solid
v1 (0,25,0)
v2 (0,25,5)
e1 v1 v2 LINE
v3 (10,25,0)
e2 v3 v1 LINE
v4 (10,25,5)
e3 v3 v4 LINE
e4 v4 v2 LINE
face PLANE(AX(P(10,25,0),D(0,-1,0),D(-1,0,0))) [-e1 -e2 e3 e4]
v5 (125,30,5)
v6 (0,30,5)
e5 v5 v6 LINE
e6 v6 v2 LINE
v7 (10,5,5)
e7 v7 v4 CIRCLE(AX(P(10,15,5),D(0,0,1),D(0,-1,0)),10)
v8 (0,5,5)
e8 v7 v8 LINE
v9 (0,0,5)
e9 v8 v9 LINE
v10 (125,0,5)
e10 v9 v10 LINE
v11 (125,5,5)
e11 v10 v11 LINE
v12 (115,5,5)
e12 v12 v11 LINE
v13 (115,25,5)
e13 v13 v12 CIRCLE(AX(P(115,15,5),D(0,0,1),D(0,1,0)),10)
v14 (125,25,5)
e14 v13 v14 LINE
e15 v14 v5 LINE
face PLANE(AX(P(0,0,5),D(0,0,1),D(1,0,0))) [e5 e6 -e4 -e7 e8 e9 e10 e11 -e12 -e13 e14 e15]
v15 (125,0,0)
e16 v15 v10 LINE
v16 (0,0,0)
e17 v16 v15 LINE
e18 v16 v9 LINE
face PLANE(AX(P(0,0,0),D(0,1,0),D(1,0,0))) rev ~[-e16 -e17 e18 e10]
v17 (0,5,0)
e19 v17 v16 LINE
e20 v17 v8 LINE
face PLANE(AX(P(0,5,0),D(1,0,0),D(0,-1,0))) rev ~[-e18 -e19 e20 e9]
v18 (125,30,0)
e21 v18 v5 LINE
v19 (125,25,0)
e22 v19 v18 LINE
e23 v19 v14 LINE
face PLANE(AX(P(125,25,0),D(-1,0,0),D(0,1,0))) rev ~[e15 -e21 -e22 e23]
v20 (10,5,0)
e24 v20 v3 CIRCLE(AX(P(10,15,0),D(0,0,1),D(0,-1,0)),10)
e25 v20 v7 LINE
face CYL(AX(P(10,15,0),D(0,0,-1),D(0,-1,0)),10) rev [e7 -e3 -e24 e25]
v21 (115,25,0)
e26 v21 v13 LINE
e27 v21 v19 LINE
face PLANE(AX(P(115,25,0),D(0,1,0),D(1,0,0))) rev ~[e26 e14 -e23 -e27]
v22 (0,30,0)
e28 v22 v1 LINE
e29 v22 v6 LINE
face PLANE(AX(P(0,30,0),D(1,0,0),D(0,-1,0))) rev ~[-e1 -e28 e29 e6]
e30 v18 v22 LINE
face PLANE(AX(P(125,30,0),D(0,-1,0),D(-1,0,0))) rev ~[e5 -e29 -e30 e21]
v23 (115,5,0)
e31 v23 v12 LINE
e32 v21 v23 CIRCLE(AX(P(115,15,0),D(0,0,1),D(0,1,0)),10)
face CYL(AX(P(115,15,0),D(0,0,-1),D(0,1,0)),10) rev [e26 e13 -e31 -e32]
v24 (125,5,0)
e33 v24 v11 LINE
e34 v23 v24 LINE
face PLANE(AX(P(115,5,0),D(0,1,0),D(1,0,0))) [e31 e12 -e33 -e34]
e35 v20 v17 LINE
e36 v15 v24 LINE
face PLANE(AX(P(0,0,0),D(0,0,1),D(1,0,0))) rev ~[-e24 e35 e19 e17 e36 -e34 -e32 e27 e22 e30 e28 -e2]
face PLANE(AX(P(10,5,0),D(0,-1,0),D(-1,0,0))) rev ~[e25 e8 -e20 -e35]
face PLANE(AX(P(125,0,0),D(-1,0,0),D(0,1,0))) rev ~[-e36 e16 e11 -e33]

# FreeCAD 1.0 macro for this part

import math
import FreeCAD as App
import Part
import Sketcher
Q = App.Units.Quantity

doc = App.newDocument("Part")
body = doc.addObject("PartDesign::Body", "Body")

# Sketch on XY plane
sketch1 = doc.addObject("Sketcher::SketchObject", "Sketch")
body.addObject(sketch1)
sketch1.AttachmentSupport = (doc.XY_Plane, [""])
sketch1.MapMode = "FlatFace"
sketch1.addGeometry([
    Part.LineSegment(App.Vector(0, 5, 0), App.Vector(0, 0, 0)),  # 0
    Part.LineSegment(App.Vector(0, 0, 0), App.Vector(125, 0, 0)),  # 1
    Part.LineSegment(App.Vector(125, 0, 0), App.Vector(125, 5, 0)),  # 2
    Part.LineSegment(App.Vector(125, 5, 0), App.Vector(115, 5, 0)),  # 3
    Part.ArcOfCircle(Part.Circle(App.Vector(115, 15, 0), App.Vector(0, 0, 1), 10), math.radians(90), math.radians(270)),  # 4
    Part.LineSegment(App.Vector(115, 25, 0), App.Vector(125, 25, 0)),  # 5
    Part.LineSegment(App.Vector(125, 25, 0), App.Vector(125, 30, 0)),  # 6
    Part.LineSegment(App.Vector(125, 30, 0), App.Vector(0, 30, 0)),  # 7
    Part.LineSegment(App.Vector(0, 30, 0), App.Vector(0, 25, 0)),  # 8
    Part.LineSegment(App.Vector(0, 25, 0), App.Vector(10, 25, 0)),  # 9
    Part.ArcOfCircle(Part.Circle(App.Vector(10, 15, 0), App.Vector(0, 0, 1), 10), math.radians(-90), math.radians(90)),  # 10
    Part.LineSegment(App.Vector(10, 5, 0), App.Vector(0, 5, 0)),  # 11
], False)
sketch1.addConstraint([
    Sketcher.Constraint("Coincident", 0, 2, 1, 1),
    Sketcher.Constraint("Coincident", 1, 2, 2, 1),
    Sketcher.Constraint("Coincident", 2, 2, 3, 1),
    Sketcher.Constraint("Tangent", 3, 2, 4, 2),
    Sketcher.Constraint("Tangent", 4, 1, 5, 1),
    Sketcher.Constraint("Coincident", 5, 2, 6, 1),
    Sketcher.Constraint("Coincident", 6, 2, 7, 1),
    Sketcher.Constraint("Coincident", 7, 2, 8, 1),
    Sketcher.Constraint("Coincident", 8, 2, 9, 1),
    Sketcher.Constraint("Tangent", 9, 2, 10, 2),
    Sketcher.Constraint("Tangent", 10, 1, 11, 1),
    Sketcher.Constraint("Coincident", 11, 2, 0, 1),
    Sketcher.Constraint("Vertical", 0),
    Sketcher.Constraint("Horizontal", 1),
    Sketcher.Constraint("Vertical", 2),
    Sketcher.Constraint("Horizontal", 3),
    Sketcher.Constraint("Horizontal", 5),
    Sketcher.Constraint("Vertical", 6),
    Sketcher.Constraint("Horizontal", 7),
    Sketcher.Constraint("Vertical", 8),
    Sketcher.Constraint("Horizontal", 9),
    Sketcher.Constraint("Horizontal", 11),
    Sketcher.Constraint("Coincident", 0, 2, -1, 1),
    Sketcher.Constraint("Equal", 4, 10),
    Sketcher.Constraint("PointOnObject", 7, 2, -2),
    Sketcher.Constraint("Horizontal", 4, 3, 10, 3),
    Sketcher.Constraint("Vertical", 2, 2, 5, 2),
    Sketcher.Constraint("Equal", 5, 9),
    Sketcher.Constraint("Equal", 2, 6),
    Sketcher.Constraint("Radius", 4, Q("10 mm")),
    Sketcher.Constraint("DistanceX", 1, 1, 1, 2, Q("125 mm")),
    Sketcher.Constraint("DistanceX", 3, 2, 3, 1, Q("10 mm")),
    Sketcher.Constraint("DistanceY", 0, 2, 0, 1, Q("5 mm")),
])
pad1 = doc.addObject("PartDesign::Pad", "Pad")
body.addObject(pad1)
pad1.Profile = sketch1
pad1.Length = 5

doc.recompute()
